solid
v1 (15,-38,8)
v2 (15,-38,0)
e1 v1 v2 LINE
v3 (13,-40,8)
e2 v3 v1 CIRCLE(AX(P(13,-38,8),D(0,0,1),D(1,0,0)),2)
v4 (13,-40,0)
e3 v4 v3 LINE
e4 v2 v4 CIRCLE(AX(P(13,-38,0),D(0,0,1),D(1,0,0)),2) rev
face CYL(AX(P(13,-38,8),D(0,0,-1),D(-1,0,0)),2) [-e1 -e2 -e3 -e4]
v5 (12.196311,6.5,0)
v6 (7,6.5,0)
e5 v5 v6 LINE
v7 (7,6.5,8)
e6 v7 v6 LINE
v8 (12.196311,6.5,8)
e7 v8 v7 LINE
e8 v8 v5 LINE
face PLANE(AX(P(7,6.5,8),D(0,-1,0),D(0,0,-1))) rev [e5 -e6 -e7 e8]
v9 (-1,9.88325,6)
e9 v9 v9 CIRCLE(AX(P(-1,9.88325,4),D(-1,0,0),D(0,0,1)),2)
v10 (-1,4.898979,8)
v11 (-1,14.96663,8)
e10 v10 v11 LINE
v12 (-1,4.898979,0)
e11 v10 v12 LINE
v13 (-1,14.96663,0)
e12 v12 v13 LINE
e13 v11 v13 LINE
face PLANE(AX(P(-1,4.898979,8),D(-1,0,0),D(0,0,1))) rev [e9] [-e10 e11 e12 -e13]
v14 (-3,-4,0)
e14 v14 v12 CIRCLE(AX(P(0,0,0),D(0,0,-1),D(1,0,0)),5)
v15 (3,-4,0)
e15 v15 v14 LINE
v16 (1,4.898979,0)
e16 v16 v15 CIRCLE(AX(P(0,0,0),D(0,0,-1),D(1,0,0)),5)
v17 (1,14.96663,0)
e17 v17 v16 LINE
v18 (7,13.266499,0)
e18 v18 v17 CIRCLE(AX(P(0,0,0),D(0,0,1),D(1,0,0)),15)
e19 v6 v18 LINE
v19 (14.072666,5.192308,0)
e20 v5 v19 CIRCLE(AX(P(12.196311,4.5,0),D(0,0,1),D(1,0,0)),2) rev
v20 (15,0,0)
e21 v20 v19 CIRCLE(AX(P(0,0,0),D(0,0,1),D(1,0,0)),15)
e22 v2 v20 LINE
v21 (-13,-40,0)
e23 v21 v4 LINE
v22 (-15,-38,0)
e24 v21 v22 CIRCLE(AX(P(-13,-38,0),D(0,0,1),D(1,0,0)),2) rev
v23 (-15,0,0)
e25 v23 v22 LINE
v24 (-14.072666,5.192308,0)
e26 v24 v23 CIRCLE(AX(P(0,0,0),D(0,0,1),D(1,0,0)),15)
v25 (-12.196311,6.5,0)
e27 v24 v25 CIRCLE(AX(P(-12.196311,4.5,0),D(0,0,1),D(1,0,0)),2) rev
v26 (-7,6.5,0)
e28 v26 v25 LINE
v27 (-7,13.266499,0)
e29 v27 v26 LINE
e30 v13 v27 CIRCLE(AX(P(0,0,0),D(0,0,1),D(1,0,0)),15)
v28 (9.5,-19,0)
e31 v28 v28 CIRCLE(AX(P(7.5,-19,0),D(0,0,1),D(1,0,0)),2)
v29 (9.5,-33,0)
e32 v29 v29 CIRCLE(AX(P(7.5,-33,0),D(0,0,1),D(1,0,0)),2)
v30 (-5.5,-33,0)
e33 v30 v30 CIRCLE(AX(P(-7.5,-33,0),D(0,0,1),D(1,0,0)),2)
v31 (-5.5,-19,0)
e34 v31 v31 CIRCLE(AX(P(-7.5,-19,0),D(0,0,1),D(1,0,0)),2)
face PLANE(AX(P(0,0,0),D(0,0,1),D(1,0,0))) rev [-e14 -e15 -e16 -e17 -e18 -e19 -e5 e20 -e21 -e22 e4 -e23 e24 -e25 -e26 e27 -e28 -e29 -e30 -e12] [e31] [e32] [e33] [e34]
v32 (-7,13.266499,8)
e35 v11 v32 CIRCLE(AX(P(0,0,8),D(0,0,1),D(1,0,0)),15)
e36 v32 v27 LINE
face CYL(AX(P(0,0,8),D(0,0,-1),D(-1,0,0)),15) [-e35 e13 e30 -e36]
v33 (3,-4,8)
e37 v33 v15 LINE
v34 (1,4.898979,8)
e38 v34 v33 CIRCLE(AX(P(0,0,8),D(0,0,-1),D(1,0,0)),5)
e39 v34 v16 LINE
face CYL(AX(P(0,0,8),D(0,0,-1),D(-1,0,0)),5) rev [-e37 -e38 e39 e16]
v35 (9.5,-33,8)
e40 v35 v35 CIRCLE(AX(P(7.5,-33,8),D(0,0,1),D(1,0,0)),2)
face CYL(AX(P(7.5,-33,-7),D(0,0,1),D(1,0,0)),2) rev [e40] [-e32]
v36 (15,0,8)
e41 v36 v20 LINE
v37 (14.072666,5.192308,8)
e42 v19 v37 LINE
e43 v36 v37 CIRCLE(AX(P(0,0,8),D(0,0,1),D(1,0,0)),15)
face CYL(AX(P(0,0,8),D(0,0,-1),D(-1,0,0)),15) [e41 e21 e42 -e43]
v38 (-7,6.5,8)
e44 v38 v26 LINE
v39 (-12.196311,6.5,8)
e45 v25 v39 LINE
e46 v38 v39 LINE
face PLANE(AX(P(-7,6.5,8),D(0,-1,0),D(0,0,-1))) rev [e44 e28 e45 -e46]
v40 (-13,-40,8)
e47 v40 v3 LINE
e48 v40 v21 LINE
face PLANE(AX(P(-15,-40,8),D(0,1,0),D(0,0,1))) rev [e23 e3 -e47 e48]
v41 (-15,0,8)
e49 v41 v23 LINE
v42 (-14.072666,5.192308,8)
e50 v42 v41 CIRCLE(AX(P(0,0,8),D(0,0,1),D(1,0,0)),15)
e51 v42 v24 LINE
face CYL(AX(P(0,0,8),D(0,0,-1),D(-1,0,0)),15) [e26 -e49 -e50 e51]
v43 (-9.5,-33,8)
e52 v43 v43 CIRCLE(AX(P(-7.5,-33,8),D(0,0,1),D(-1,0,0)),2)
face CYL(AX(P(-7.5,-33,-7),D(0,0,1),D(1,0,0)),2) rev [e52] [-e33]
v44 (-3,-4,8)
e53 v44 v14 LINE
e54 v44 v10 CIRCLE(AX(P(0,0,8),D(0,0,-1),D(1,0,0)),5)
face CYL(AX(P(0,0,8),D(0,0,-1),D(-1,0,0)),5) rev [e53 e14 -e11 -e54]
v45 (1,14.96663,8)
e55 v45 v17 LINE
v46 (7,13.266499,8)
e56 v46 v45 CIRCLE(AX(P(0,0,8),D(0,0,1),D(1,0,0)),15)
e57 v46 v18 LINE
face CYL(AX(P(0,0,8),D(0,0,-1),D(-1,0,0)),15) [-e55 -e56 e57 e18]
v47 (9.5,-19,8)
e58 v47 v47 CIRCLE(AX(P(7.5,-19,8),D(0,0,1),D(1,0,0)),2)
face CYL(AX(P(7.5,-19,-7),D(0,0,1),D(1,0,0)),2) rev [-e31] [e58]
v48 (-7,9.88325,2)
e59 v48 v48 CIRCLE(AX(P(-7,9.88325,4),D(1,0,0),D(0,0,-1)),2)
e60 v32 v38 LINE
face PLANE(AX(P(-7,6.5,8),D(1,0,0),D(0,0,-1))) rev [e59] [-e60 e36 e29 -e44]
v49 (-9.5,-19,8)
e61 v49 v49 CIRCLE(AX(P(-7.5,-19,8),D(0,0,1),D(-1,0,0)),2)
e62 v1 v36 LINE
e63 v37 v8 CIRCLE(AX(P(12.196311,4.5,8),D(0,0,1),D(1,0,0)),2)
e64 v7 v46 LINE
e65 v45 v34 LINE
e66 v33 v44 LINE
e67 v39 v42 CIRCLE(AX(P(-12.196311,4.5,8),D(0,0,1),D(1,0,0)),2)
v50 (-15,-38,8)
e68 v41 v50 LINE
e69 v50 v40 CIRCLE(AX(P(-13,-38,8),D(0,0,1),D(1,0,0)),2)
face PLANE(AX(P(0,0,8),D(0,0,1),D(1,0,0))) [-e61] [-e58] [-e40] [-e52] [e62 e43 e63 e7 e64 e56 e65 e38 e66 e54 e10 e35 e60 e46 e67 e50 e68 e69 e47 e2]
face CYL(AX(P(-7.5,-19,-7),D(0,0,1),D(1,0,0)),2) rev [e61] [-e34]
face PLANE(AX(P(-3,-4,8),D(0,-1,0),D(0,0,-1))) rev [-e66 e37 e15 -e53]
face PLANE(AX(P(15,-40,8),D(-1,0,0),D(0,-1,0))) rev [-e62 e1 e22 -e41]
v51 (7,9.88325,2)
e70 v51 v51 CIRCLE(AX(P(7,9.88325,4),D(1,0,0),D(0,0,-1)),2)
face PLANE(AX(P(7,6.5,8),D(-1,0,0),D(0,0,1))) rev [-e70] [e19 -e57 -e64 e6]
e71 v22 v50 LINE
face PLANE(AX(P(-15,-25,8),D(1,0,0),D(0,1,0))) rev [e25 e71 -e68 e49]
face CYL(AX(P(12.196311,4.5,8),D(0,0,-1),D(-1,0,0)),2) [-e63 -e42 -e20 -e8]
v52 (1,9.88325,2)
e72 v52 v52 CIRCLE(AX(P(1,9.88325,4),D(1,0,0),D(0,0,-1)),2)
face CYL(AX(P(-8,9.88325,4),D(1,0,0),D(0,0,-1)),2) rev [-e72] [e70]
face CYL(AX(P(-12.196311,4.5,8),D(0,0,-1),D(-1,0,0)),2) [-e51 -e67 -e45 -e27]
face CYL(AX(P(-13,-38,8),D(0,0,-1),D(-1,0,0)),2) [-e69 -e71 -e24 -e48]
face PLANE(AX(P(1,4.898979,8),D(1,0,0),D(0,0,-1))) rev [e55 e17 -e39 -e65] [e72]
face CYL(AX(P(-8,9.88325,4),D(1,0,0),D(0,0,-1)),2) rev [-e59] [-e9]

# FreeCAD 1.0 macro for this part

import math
import FreeCAD as App
import Part
import Sketcher
from FreeCAD import Vector
Q = App.Units.Quantity


def edges_at(feature, points):
    """Names of the edges that pass closest to the given points."""
    edges = feature.Shape.Edges
    near = lambda p: min(range(len(edges)), key=lambda i: edges[i].distToShape(Part.Vertex(*p))[0])
    return sorted({f"Edge{near(p) + 1}" for p in points})

doc = App.newDocument("Part")
params = doc.addObject("Spreadsheet::Sheet", "Params")
for row, (alias, value) in enumerate([
    ("sketch1_radius", "15 mm"),
    ("sketch1_radius2", "5 mm"),
    ("sketch1_width", "6 mm"),
    ("sketch1_height", "40 mm"),
    ("pad1_length", "8 mm"),
    ("sketch2_diameter", "4 mm"),
    ("pocket1_length", "15 mm"),
    ("sketch3_diameter", "4 mm"),
    ("pocket2_length", "15 mm"),
    ("fillet_radius", "2 mm"),
], start=1):
    params.set(f"A{row}", alias)
    params.set(f"B{row}", "=" + value)
    params.setAlias(f"B{row}", alias)

body = doc.addObject("PartDesign::Body", "Body")

sketch1 = body.newObject("Sketcher::SketchObject", "Sketch")
sketch1.AttachmentSupport = (doc.getObject("XY_Plane"), [""])
sketch1.MapMode = "FlatFace"
sketch1.addGeometry(Part.LineSegment(Vector(-15, 0, 0), Vector(-15, -40, 0)), False)
sketch1.addGeometry(Part.LineSegment(Vector(-15, -40, 0), Vector(15, -40, 0)), False)
sketch1.addGeometry(Part.LineSegment(Vector(15, -40, 0), Vector(15, 0, 0)), False)
sketch1.addGeometry(Part.ArcOfCircle(Part.Circle(Vector(0, 0, 0), Vector(0, 0, 1), 15), math.radians(0), math.radians(26)), False)
sketch1.addGeometry(Part.LineSegment(Vector(14, 6, 0), Vector(7, 6, 0)), False)
sketch1.addGeometry(Part.LineSegment(Vector(7, 6, 0), Vector(7, 13, 0)), False)
sketch1.addGeometry(Part.ArcOfCircle(Part.Circle(Vector(0, 0, 0), Vector(0, 0, 1), 15), math.radians(62), math.radians(86)), False)
sketch1.addGeometry(Part.LineSegment(Vector(1, 15, 0), Vector(1, 5, 0)), False)
sketch1.addGeometry(Part.ArcOfCircle(Part.Circle(Vector(0, 0, 0), Vector(0, 0, 1), 5), math.radians(-53), math.radians(78)), False)
sketch1.addGeometry(Part.LineSegment(Vector(3, -4, 0), Vector(-3, -4, 0)), False)
sketch1.addGeometry(Part.ArcOfCircle(Part.Circle(Vector(0, 0, 0), Vector(0, 0, 1), 5), math.radians(102), math.radians(233)), False)
sketch1.addGeometry(Part.LineSegment(Vector(-1, 5, 0), Vector(-1, 15, 0)), False)
sketch1.addGeometry(Part.ArcOfCircle(Part.Circle(Vector(0, 0, 0), Vector(0, 0, 1), 15), math.radians(94), math.radians(118)), False)
sketch1.addGeometry(Part.LineSegment(Vector(-7, 13, 0), Vector(-7, 6, 0)), False)
sketch1.addGeometry(Part.LineSegment(Vector(-7, 6, 0), Vector(-14, 6, 0)), False)
sketch1.addGeometry(Part.ArcOfCircle(Part.Circle(Vector(0, 0, 0), Vector(0, 0, 1), 15), math.radians(154), math.radians(180)), False)
sketch1.addConstraint(Sketcher.Constraint("Coincident", 0, 2, 1, 1))
sketch1.addConstraint(Sketcher.Constraint("Coincident", 1, 2, 2, 1))
sketch1.addConstraint(Sketcher.Constraint("Tangent", 2, 2, 3, 1))
sketch1.addConstraint(Sketcher.Constraint("Coincident", 3, 2, 4, 1))
sketch1.addConstraint(Sketcher.Constraint("Coincident", 4, 2, 5, 1))
sketch1.addConstraint(Sketcher.Constraint("Coincident", 5, 2, 6, 1))
sketch1.addConstraint(Sketcher.Constraint("Coincident", 6, 2, 7, 1))
sketch1.addConstraint(Sketcher.Constraint("Coincident", 7, 2, 8, 2))
sketch1.addConstraint(Sketcher.Constraint("Coincident", 8, 1, 9, 1))
sketch1.addConstraint(Sketcher.Constraint("Coincident", 9, 2, 10, 2))
sketch1.addConstraint(Sketcher.Constraint("Coincident", 10, 1, 11, 1))
sketch1.addConstraint(Sketcher.Constraint("Coincident", 11, 2, 12, 1))
sketch1.addConstraint(Sketcher.Constraint("Coincident", 12, 2, 13, 1))
sketch1.addConstraint(Sketcher.Constraint("Coincident", 13, 2, 14, 1))
sketch1.addConstraint(Sketcher.Constraint("Coincident", 14, 2, 15, 1))
sketch1.addConstraint(Sketcher.Constraint("Tangent", 15, 2, 0, 1))
sketch1.addConstraint(Sketcher.Constraint("Vertical", 0))
sketch1.addConstraint(Sketcher.Constraint("Horizontal", 1))
sketch1.addConstraint(Sketcher.Constraint("Vertical", 2))
sketch1.addConstraint(Sketcher.Constraint("Horizontal", 4))
sketch1.addConstraint(Sketcher.Constraint("Vertical", 5))
sketch1.addConstraint(Sketcher.Constraint("Vertical", 7))
sketch1.addConstraint(Sketcher.Constraint("Horizontal", 9))
sketch1.addConstraint(Sketcher.Constraint("Vertical", 11))
sketch1.addConstraint(Sketcher.Constraint("Vertical", 13))
sketch1.addConstraint(Sketcher.Constraint("Horizontal", 14))
sketch1.addConstraint(Sketcher.Constraint("Coincident", 3, 3, -1, 1))
sketch1.addConstraint(Sketcher.Constraint("Coincident", 6, 3, -1, 1))
sketch1.addConstraint(Sketcher.Constraint("Coincident", 8, 3, -1, 1))
sketch1.addConstraint(Sketcher.Constraint("Coincident", 10, 3, -1, 1))
sketch1.addConstraint(Sketcher.Constraint("Coincident", 12, 3, -1, 1))
sketch1.addConstraint(Sketcher.Constraint("Coincident", 15, 3, -1, 1))
sketch1.addConstraint(Sketcher.Constraint("Equal", 3, 6))
sketch1.addConstraint(Sketcher.Constraint("Equal", 8, 10))
sketch1.addConstraint(Sketcher.Constraint("Equal", 6, 12))
sketch1.addConstraint(Sketcher.Constraint("Equal", 12, 15))
sketch1.addConstraint(Sketcher.Constraint("Symmetric", 4, 2, 13, 2, -2))
sketch1.addConstraint(Sketcher.Constraint("Horizontal", 7, 2, 10, 1))
sketch1.addConstraint(Sketcher.Constraint("Radius", 3, Q("15 mm")))
sketch1.addConstraint(Sketcher.Constraint("Radius", 8, Q("5 mm")))
sketch1.addConstraint(Sketcher.Constraint("DistanceX", 9, 2, 9, 1, Q("6 mm")))
sketch1.addConstraint(Sketcher.Constraint("DistanceY", 0, 2, 0, 1, Q("40 mm")))
sketch1.addConstraint(Sketcher.Constraint("DistanceX", -1, 1, 4, 2, Q("7 mm")))
sketch1.addConstraint(Sketcher.Constraint("DistanceX", -1, 1, 6, 2, Q("1 mm")))
sketch1.addConstraint(Sketcher.Constraint("DistanceY", -1, 1, 3, 2, Q("6.5 mm")))
sketch1.setExpression("Constraints[38]", "Params.sketch1_radius")
sketch1.setExpression("Constraints[39]", "Params.sketch1_radius2")
sketch1.setExpression("Constraints[40]", "Params.sketch1_width")
sketch1.setExpression("Constraints[41]", "Params.sketch1_height")
pad1 = body.newObject("PartDesign::Pad", "Pad")
pad1.Profile = sketch1
pad1.setExpression("Length", "Params.pad1_length")

sketch2 = body.newObject("Sketcher::SketchObject", "Sketch001")
sketch2.AttachmentSupport = (doc.getObject("YZ_Plane"), [""])
sketch2.MapMode = "FlatFace"
sketch2.AttachmentOffset = App.Placement(Vector(0, 0, 7), App.Rotation())
sketch2.addGeometry(Part.Circle(Vector(9.9, 4, 0), Vector(0, 0, 1), 2), False)
sketch2.addConstraint(Sketcher.Constraint("Diameter", 0, Q("4 mm")))
sketch2.addConstraint(Sketcher.Constraint("DistanceY", -1, 1, 0, 3, Q("4 mm")))
sketch2.addConstraint(Sketcher.Constraint("DistanceX", -1, 1, 0, 3, Q("9.88325 mm")))
sketch2.setExpression("Constraints[0]", "Params.sketch2_diameter")
pocket1 = body.newObject("PartDesign::Pocket", "Pocket")
pocket1.Profile = sketch2
pocket1.setExpression("Length", "Params.pocket1_length")

sketch3 = body.newObject("Sketcher::SketchObject", "Sketch002")
sketch3.AttachmentSupport = (doc.getObject("XY_Plane"), [""])
sketch3.MapMode = "FlatFace"
sketch3.AttachmentOffset = App.Placement(Vector(0, 0, 8), App.Rotation())
sketch3.addGeometry(Part.Circle(Vector(7.5, -19, 0), Vector(0, 0, 1), 2), False)
sketch3.addGeometry(Part.Circle(Vector(7.5, -33, 0), Vector(0, 0, 1), 2), False)
sketch3.addGeometry(Part.Circle(Vector(-7.5, -33, 0), Vector(0, 0, 1), 2), False)
sketch3.addGeometry(Part.Circle(Vector(-7.5, -19, 0), Vector(0, 0, 1), 2), False)
sketch3.addConstraint(Sketcher.Constraint("Equal", 0, 1))
sketch3.addConstraint(Sketcher.Constraint("Equal", 1, 2))
sketch3.addConstraint(Sketcher.Constraint("Equal", 2, 3))
sketch3.addConstraint(Sketcher.Constraint("Symmetric", 1, 3, 2, 3, -2))
sketch3.addConstraint(Sketcher.Constraint("Symmetric", 0, 3, 3, 3, -2))
sketch3.addConstraint(Sketcher.Constraint("Vertical", 0, 3, 1, 3))
sketch3.addConstraint(Sketcher.Constraint("Diameter", 0, Q("4 mm")))
sketch3.addConstraint(Sketcher.Constraint("DistanceY", 0, 3, -1, 1, Q("19 mm")))
sketch3.addConstraint(Sketcher.Constraint("DistanceY", 1, 3, -1, 1, Q("33 mm")))
sketch3.addConstraint(Sketcher.Constraint("DistanceX", 2, 3, 1, 3, Q("15 mm")))
sketch3.setExpression("Constraints[6]", "Params.sketch3_diameter")
pocket2 = body.newObject("PartDesign::Pocket", "Pocket001")
pocket2.Profile = sketch3
pocket2.setExpression("Length", "Params.pocket2_length")
doc.recompute()

fillet = body.newObject("PartDesign::Fillet", "Fillet")
fillet.Base = (pocket2, edges_at(pocket2, [
    (-13.519, 6.5, 4),
    (13.519, 6.5, 4),
    (15, -40, 4),
    (-15, -40, 4),
]))
fillet.setExpression("Radius", "Params.fillet_radius")

doc.recompute()
